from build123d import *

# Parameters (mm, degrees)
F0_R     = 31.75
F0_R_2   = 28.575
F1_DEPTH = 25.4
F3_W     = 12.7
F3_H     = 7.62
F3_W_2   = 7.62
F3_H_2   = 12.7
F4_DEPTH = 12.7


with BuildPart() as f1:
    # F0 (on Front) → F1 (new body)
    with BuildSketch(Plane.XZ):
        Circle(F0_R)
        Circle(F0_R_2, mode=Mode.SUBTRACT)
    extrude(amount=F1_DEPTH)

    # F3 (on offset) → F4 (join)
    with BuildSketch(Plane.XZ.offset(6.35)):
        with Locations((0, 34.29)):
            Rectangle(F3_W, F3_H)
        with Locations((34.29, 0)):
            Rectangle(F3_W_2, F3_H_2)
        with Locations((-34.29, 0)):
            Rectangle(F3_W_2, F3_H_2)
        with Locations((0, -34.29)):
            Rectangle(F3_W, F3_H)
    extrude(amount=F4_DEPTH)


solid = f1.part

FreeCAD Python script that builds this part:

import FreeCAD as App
import Part
import Sketcher

V = App.Vector
Q = App.Units.Quantity

doc = App.newDocument("Part")
body = doc.addObject("PartDesign::Body", "Body")

# Sketch on XZ plane
sketch1 = body.newObject("Sketcher::SketchObject", "Sketch")
sketch1.AttachmentSupport = (doc.getObject("XZ_Plane"), [""])
sketch1.MapMode = "FlatFace"
sketch1.addGeometry([
    Part.Circle(V(0, 0, 0), V(0, 0, 1), 32),
    Part.Circle(V(0, 0, 0), V(0, 0, 1), 29),
], False)
sketch1.addConstraint([
    Sketcher.Constraint("Coincident", 0, 3, -1, 1),
    Sketcher.Constraint("Coincident", 1, 3, -1, 1),
    Sketcher.Constraint("Diameter", 0, Q("2.5 in")),
    Sketcher.Constraint("Diameter", 1, Q("2.25 in")),
])
pad1 = body.newObject("PartDesign::Pad", "Pad")
pad1.Profile = sketch1
pad1.Length = Q("1 in")

# Sketch on XZ plane
sketch2 = body.newObject("Sketcher::SketchObject", "Sketch001")
sketch2.AttachmentSupport = (doc.getObject("XZ_Plane"), [""])
sketch2.MapMode = "FlatFace"
sketch2.AttachmentOffset = App.Placement(V(0, 0, 0.25 * 25.4), App.Rotation())
sketch2.addGeometry([
    Part.LineSegment(V(-6, 38, 0), V(-6, 30, 0)),  # 0
    Part.LineSegment(V(-6, 30, 0), V(6, 30, 0)),  # 1
    Part.LineSegment(V(6, 30, 0), V(6, 38, 0)),  # 2
    Part.LineSegment(V(6, 38, 0), V(-6, 38, 0)),  # 3
    Part.LineSegment(V(30, 6, 0), V(30, -6, 0)),  # 4
    Part.LineSegment(V(30, -6, 0), V(38, -6, 0)),  # 5
    Part.LineSegment(V(38, -6, 0), V(38, 6, 0)),  # 6
    Part.LineSegment(V(38, 6, 0), V(30, 6, 0)),  # 7
    Part.LineSegment(V(-38, 6, 0), V(-38, -6, 0)),  # 8
    Part.LineSegment(V(-38, -6, 0), V(-30, -6, 0)),  # 9
    Part.LineSegment(V(-30, -6, 0), V(-30, 6, 0)),  # 10
    Part.LineSegment(V(-30, 6, 0), V(-38, 6, 0)),  # 11
    Part.LineSegment(V(-6, -30, 0), V(-6, -38, 0)),  # 12
    Part.LineSegment(V(-6, -38, 0), V(6, -38, 0)),  # 13
    Part.LineSegment(V(6, -38, 0), V(6, -30, 0)),  # 14
    Part.LineSegment(V(6, -30, 0), V(-6, -30, 0)),  # 15
], False)
sketch2.addConstraint([
    Sketcher.Constraint("Coincident", 0, 2, 1, 1),
    Sketcher.Constraint("Coincident", 1, 2, 2, 1),
    Sketcher.Constraint("Coincident", 2, 2, 3, 1),
    Sketcher.Constraint("Coincident", 3, 2, 0, 1),
    Sketcher.Constraint("Coincident", 4, 2, 5, 1),
    Sketcher.Constraint("Coincident", 5, 2, 6, 1),
    Sketcher.Constraint("Coincident", 6, 2, 7, 1),
    Sketcher.Constraint("Coincident", 7, 2, 4, 1),
    Sketcher.Constraint("Coincident", 8, 2, 9, 1),
    Sketcher.Constraint("Coincident", 9, 2, 10, 1),
    Sketcher.Constraint("Coincident", 10, 2, 11, 1),
    Sketcher.Constraint("Coincident", 11, 2, 8, 1),
    Sketcher.Constraint("Coincident", 12, 2, 13, 1),
    Sketcher.Constraint("Coincident", 13, 2, 14, 1),
    Sketcher.Constraint("Coincident", 14, 2, 15, 1),
    Sketcher.Constraint("Coincident", 15, 2, 12, 1),
    Sketcher.Constraint("Vertical", 0),
    Sketcher.Constraint("Horizontal", 1),
    Sketcher.Constraint("Vertical", 2),
    Sketcher.Constraint("Horizontal", 3),
    Sketcher.Constraint("Vertical", 4),
    Sketcher.Constraint("Horizontal", 5),
    Sketcher.Constraint("Vertical", 6),
    Sketcher.Constraint("Horizontal", 7),
    Sketcher.Constraint("Vertical", 8),
    Sketcher.Constraint("Horizontal", 9),
    Sketcher.Constraint("Vertical", 10),
    Sketcher.Constraint("Horizontal", 11),
    Sketcher.Constraint("Vertical", 12),
    Sketcher.Constraint("Horizontal", 13),
    Sketcher.Constraint("Vertical", 14),
    Sketcher.Constraint("Horizontal", 15),
    Sketcher.Constraint("Symmetric", 6, 2, 8, 2, -1, 1),
    Sketcher.Constraint("Symmetric", 4, 2, 10, 2, -1, 1),
    Sketcher.Constraint("Symmetric", 2, 2, 12, 2, -1, 1),
    Sketcher.Constraint("Symmetric", 0, 2, 14, 2, -1, 1),
    Sketcher.Constraint("Horizontal", 5, 2, 8, 2),
    Sketcher.Constraint("Vertical", 3, 2, 12, 2),
    Sketcher.Constraint("Equal", 11, 0),
    Sketcher.Constraint("Equal", 15, 4),
    Sketcher.Constraint("DistanceX", 1, 1, 1, 2, Q("0.5 in")),
    Sketcher.Constraint("DistanceX", 5, 1, 5, 2, Q("0.3 in")),
    Sketcher.Constraint("DistanceY", -1, 1, 0, 2, Q("1.2 in")),
    Sketcher.Constraint("DistanceX", -1, 1, 4, 2, Q("1.2 in")),
])
pad2 = body.newObject("PartDesign::Pad", "Pad001")
pad2.Profile = sketch2
pad2.Length = Q("0.5 in")

doc.recompute()
